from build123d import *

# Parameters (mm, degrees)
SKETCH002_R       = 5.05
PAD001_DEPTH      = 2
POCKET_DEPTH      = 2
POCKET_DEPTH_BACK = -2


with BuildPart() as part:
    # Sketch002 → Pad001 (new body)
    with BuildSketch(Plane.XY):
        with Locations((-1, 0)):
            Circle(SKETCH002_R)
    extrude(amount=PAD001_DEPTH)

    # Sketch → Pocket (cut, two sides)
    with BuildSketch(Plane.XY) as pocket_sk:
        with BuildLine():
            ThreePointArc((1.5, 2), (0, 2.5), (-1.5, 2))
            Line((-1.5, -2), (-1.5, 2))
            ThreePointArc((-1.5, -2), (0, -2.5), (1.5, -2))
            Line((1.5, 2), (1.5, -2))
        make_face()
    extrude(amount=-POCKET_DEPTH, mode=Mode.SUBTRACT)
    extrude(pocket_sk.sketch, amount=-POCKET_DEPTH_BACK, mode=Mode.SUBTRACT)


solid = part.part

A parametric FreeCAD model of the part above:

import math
import FreeCAD as App
import Part
import Sketcher
from FreeCAD import Vector

doc = App.newDocument("Part")
body = doc.addObject("PartDesign::Body", "Body")

# Sketch on XY plane
sketch1 = body.newObject("Sketcher::SketchObject", "Sketch")
sketch1.AttachmentSupport = (doc.getObject("XY_Plane"), [""])
sketch1.MapMode = "FlatFace"
sketch1.addGeometry(Part.Circle(Vector(-1, 0, 0), Vector(0, 0, 1), 5), False)
sketch1.addConstraint([
    Sketcher.Constraint("PointOnObject", 0, 3, -1),
    Sketcher.Constraint("Diameter", 0, 10.1),
    Sketcher.Constraint("DistanceX", 0, 3, -1, 1, 1.0),
])
pad1 = body.newObject("PartDesign::Pad", "Pad")
pad1.Profile = sketch1
pad1.Length = 2

# Sketch on XY plane
sketch2 = body.newObject("Sketcher::SketchObject", "Sketch001")
sketch2.AttachmentSupport = (doc.getObject("XY_Plane"), [""])
sketch2.MapMode = "FlatFace"
sketch2.addGeometry([
    Part.ArcOfCircle(Part.Circle(Vector(0, 0, 0), Vector(0, 0, 1), 2.5), math.radians(53), math.radians(127)),
    Part.LineSegment(Vector(-1.5, 2, 0), Vector(-1.5, -2, 0)),
    Part.ArcOfCircle(Part.Circle(Vector(0, 0, 0), Vector(0, 0, 1), 2.5), math.radians(-127), math.radians(-53)),
    Part.LineSegment(Vector(1.5, -2, 0), Vector(1.5, 2, 0)),
], False)
sketch2.addConstraint([
    Sketcher.Constraint("Coincident", 0, 2, 1, 1),
    Sketcher.Constraint("Coincident", 1, 2, 2, 1),
    Sketcher.Constraint("Coincident", 2, 2, 3, 1),
    Sketcher.Constraint("Coincident", 3, 2, 0, 1),
    Sketcher.Constraint("Vertical", 1),
    Sketcher.Constraint("Vertical", 3),
    Sketcher.Constraint("Coincident", 0, 3, -1, 1),
    Sketcher.Constraint("Coincident", 2, 3, -1, 1),
    Sketcher.Constraint("Equal", 0, 2),
    Sketcher.Constraint("Horizontal", 1, 2, 2, 2),
    Sketcher.Constraint("Radius", 0, 2.5),
    Sketcher.Constraint("DistanceY", 1, 2, 1, 1, 4.0),
])
pocket1 = body.newObject("PartDesign::Pocket", "Pocket")
pocket1.Profile = sketch2
pocket1.Type = "ThroughAll"
pocket1.Midplane = True

doc.recompute()
